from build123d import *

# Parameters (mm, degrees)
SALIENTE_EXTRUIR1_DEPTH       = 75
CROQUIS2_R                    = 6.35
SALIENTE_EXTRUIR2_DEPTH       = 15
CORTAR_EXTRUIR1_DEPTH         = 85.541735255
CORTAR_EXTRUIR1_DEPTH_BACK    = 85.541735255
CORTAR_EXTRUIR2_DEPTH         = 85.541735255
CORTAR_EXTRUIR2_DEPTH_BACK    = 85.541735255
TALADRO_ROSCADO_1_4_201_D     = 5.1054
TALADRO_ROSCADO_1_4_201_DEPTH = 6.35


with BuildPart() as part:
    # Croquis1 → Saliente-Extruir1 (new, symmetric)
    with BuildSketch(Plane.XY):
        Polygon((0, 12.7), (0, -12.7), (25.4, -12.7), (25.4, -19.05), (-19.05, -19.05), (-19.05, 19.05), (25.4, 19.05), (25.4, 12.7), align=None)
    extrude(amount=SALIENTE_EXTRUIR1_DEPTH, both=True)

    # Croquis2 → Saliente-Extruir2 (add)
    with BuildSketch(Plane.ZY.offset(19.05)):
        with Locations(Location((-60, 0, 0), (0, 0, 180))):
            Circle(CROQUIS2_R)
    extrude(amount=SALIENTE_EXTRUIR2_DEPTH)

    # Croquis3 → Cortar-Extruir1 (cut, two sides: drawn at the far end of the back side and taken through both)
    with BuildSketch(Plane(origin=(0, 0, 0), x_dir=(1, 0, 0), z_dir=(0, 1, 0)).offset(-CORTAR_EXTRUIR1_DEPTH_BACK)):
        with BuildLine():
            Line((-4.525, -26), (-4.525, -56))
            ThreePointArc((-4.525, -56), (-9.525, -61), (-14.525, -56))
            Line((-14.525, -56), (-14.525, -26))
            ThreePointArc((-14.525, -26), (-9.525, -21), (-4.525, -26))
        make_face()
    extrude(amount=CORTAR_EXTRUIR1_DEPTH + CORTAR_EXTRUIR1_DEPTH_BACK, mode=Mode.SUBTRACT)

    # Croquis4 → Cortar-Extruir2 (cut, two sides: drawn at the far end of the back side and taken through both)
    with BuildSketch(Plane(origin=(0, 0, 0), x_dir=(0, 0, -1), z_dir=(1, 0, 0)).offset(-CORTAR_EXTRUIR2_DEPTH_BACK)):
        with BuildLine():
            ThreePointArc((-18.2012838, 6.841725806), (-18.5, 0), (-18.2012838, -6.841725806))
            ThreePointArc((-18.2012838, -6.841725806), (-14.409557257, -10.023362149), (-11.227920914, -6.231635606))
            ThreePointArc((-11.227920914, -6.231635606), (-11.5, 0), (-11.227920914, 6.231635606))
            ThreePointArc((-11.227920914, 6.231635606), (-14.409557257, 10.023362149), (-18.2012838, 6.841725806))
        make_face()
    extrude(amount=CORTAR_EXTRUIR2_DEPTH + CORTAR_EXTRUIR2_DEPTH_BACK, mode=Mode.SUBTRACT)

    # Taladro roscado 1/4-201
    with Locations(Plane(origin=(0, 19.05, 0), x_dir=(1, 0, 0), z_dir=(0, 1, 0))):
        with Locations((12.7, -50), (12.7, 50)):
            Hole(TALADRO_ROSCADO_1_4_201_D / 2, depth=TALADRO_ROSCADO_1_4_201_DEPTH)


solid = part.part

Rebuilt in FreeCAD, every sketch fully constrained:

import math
import FreeCAD as App
import Part
import Sketcher

V = App.Vector
Q = App.Units.Quantity


def add_polygon(sketch, points):
    """Adds a closed chain of lines whose ends are joined by coincident constraints."""
    first, n = sketch.GeometryCount, len(points)
    for a, b in zip(points, points[1:] + points[:1]):
        sketch.addGeometry(Part.LineSegment(App.Vector(*a, 0), App.Vector(*b, 0)), False)
    for i in range(n):
        sketch.addConstraint(Sketcher.Constraint("Coincident", first + i, 2, first + (i + 1) % n, 1))

doc = App.newDocument("Part")
params = doc.addObject("Spreadsheet::Sheet", "Params")
for row, (alias, value) in enumerate([
    ("sketch1_width", "25.4 mm"),
    ("sketch1_height", "38.1 mm"),
    ("sketch1_width2", "44.45 mm"),
    ("pad1_length", "150 mm"),
    ("sketch2_diameter", "12.7 mm"),
    ("pad2_length", "15 mm"),
    ("sketch3_radius", "5 mm"),
    ("sketch3_height", "30 mm"),
    ("sketch4_radius", "78.5 mm"),
    ("sketch4_radius2", "3.5 mm"),
    ("hole_diameter", "5.1054 mm"),
    ("hole_depth", "6.35 mm"),
], start=1):
    params.set(f"A{row}", alias)
    params.set(f"B{row}", "=" + value)
    params.setAlias(f"B{row}", alias)

body = doc.addObject("PartDesign::Body", "Body")

sketch1 = doc.addObject("Sketcher::SketchObject", "Sketch")
body.addObject(sketch1)
sketch1.AttachmentSupport = (doc.XY_Plane, [""])
sketch1.MapMode = "FlatFace"
add_polygon(sketch1, [(0, -13), (0, 13), (25, 13), (25, 19), (-19, 19), (-19, -19), (25, -19), (25, -13)])
sketch1.addConstraint(Sketcher.Constraint("Vertical", 0))
sketch1.addConstraint(Sketcher.Constraint("Horizontal", 1))
sketch1.addConstraint(Sketcher.Constraint("Vertical", 2))
sketch1.addConstraint(Sketcher.Constraint("Horizontal", 3))
sketch1.addConstraint(Sketcher.Constraint("Vertical", 4))
sketch1.addConstraint(Sketcher.Constraint("Horizontal", 5))
sketch1.addConstraint(Sketcher.Constraint("Vertical", 6))
sketch1.addConstraint(Sketcher.Constraint("Horizontal", 7))
sketch1.addConstraint(Sketcher.Constraint("Symmetric", 0, 2, 7, 2, -1, 1))
sketch1.addConstraint(Sketcher.Constraint("Symmetric", 2, 2, 5, 2, -1))
sketch1.addConstraint(Sketcher.Constraint("Equal", 7, 0))
sketch1.addConstraint(Sketcher.Constraint("DistanceX", 1, 1, 1, 2, Q("25.4 mm")))
sketch1.addConstraint(Sketcher.Constraint("DistanceY", 4, 2, 4, 1, Q("38.1 mm")))
sketch1.addConstraint(Sketcher.Constraint("DistanceX", 3, 2, 3, 1, Q("44.45 mm")))
sketch1.setExpression("Constraints[19]", "Params.sketch1_width")
sketch1.setExpression("Constraints[20]", "Params.sketch1_height")
sketch1.setExpression("Constraints[21]", "Params.sketch1_width2")
pad1 = doc.addObject("PartDesign::Pad", "Pad")
body.addObject(pad1)
pad1.Profile = sketch1
pad1.setExpression("Length", "Params.pad1_length")
pad1.Midplane = True

sketch2 = doc.addObject("Sketcher::SketchObject", "Sketch001")
body.addObject(sketch2)
sketch2.AttachmentSupport = (doc.YZ_Plane, [""])
sketch2.MapMode = "FlatFace"
sketch2.AttachmentOffset = App.Placement(V(0, 0, -19.05), App.Rotation())
sketch2.addGeometry(Part.Circle(V(0, -60, 0), V(0, 0, 1), 6), False)
sketch2.addConstraint(Sketcher.Constraint("PointOnObject", 0, 3, -2))
sketch2.addConstraint(Sketcher.Constraint("Diameter", 0, Q("12.7 mm")))
sketch2.addConstraint(Sketcher.Constraint("DistanceY", 0, 3, -1, 1, Q("60 mm")))
sketch2.setExpression("Constraints[1]", "Params.sketch2_diameter")
pad2 = doc.addObject("PartDesign::Pad", "Pad001")
body.addObject(pad2)
pad2.Profile = sketch2
pad2.setExpression("Length", "Params.pad2_length")
pad2.Reversed = True

sketch3 = doc.addObject("Sketcher::SketchObject", "Sketch002")
body.addObject(sketch3)
sketch3.AttachmentSupport = (doc.XZ_Plane, [""])
sketch3.MapMode = "FlatFace"
sketch3.addGeometry(Part.LineSegment(V(-5, 56, 0), V(-5, 26, 0)), False)
sketch3.addGeometry(Part.ArcOfCircle(Part.Circle(V(-10, 26, 0), V(0, 0, 1), 5), math.radians(180), math.radians(360)), False)
sketch3.addGeometry(Part.LineSegment(V(-15, 26, 0), V(-15, 56, 0)), False)
sketch3.addGeometry(Part.ArcOfCircle(Part.Circle(V(-10, 56, 0), V(0, 0, 1), 5), math.radians(0), math.radians(180)), False)
sketch3.addConstraint(Sketcher.Constraint("Tangent", 0, 2, 1, 2))
sketch3.addConstraint(Sketcher.Constraint("Tangent", 1, 1, 2, 1))
sketch3.addConstraint(Sketcher.Constraint("Tangent", 2, 2, 3, 2))
sketch3.addConstraint(Sketcher.Constraint("Tangent", 3, 1, 0, 1))
sketch3.addConstraint(Sketcher.Constraint("Vertical", 0))
sketch3.addConstraint(Sketcher.Constraint("Vertical", 2))
sketch3.addConstraint(Sketcher.Constraint("Radius", 1, Q("5 mm")))
sketch3.addConstraint(Sketcher.Constraint("DistanceY", 0, 2, 0, 1, Q("30 mm")))
sketch3.addConstraint(Sketcher.Constraint("DistanceY", -1, 1, 1, 3, Q("26 mm")))
sketch3.addConstraint(Sketcher.Constraint("DistanceX", 1, 3, -1, 1, Q("9.525 mm")))
sketch3.setExpression("Constraints[6]", "Params.sketch3_radius")
sketch3.setExpression("Constraints[7]", "Params.sketch3_height")
pocket1 = doc.addObject("PartDesign::Pocket", "Pocket")
body.addObject(pocket1)
pocket1.Profile = sketch3
pocket1.Type = "ThroughAll"
pocket1.Midplane = True

sketch4 = doc.addObject("Sketcher::SketchObject", "Sketch003")
body.addObject(sketch4)
sketch4.AttachmentSupport = (doc.YZ_Plane, [""])
sketch4.MapMode = "FlatFace"
sketch4.addGeometry(Part.ArcOfCircle(Part.Circle(V(0, -60, 0), V(0, 0, 1), 78.5), math.radians(85), math.radians(95)), False)
sketch4.addGeometry(Part.ArcOfCircle(Part.Circle(V(-6.5, 14.7, 0), V(0, 0, 1), 3.5), math.radians(95), math.radians(275)), False)
sketch4.addGeometry(Part.ArcOfCircle(Part.Circle(V(0, -60, 0), V(0, 0, 1), 71.5), math.radians(85), math.radians(95)), False)
sketch4.addGeometry(Part.ArcOfCircle(Part.Circle(V(6.5, 14.7, 0), V(0, 0, 1), 3.5), math.radians(-95), math.radians(85)), False)
sketch4.addConstraint(Sketcher.Constraint("Tangent", 0, 2, 1, 1))
sketch4.addConstraint(Sketcher.Constraint("Tangent", 1, 2, 2, 2))
sketch4.addConstraint(Sketcher.Constraint("Tangent", 2, 1, 3, 1))
sketch4.addConstraint(Sketcher.Constraint("Tangent", 3, 2, 0, 1))
sketch4.addConstraint(Sketcher.Constraint("Coincident", 2, 3, 0, 3))
sketch4.addConstraint(Sketcher.Constraint("Symmetric", 1, 3, 3, 3, -2))
sketch4.addConstraint(Sketcher.Constraint("Radius", 0, Q("78.5 mm")))
sketch4.addConstraint(Sketcher.Constraint("Radius", 1, Q("3.5 mm")))
sketch4.addConstraint(Sketcher.Constraint("DistanceY", 0, 3, -1, 1, Q("60 mm")))
sketch4.addConstraint(Sketcher.Constraint("DistanceX", 1, 3, -1, 1, Q("6.536681 mm")))
sketch4.setExpression("Constraints[6]", "Params.sketch4_radius")
sketch4.setExpression("Constraints[7]", "Params.sketch4_radius2")
pocket2 = doc.addObject("PartDesign::Pocket", "Pocket001")
body.addObject(pocket2)
pocket2.Profile = sketch4
pocket2.Type = "ThroughAll"
pocket2.Midplane = True

sketch5 = doc.addObject("Sketcher::SketchObject", "Sketch004")
body.addObject(sketch5)
sketch5.AttachmentSupport = (doc.XZ_Plane, [""])
sketch5.MapMode = "FlatFace"
sketch5.AttachmentOffset = App.Placement(V(0, 0, -19.05), App.Rotation())
sketch5.addGeometry(Part.Circle(V(12.7, 50, 0), V(0, 0, 1), 2.6), False)
sketch5.addGeometry(Part.Circle(V(12.7, -50, 0), V(0, 0, 1), 2.6), False)
sketch5.addConstraint(Sketcher.Constraint("Equal", 0, 1))
sketch5.addConstraint(Sketcher.Constraint("Symmetric", 0, 3, 1, 3, -1))
sketch5.addConstraint(Sketcher.Constraint("DistanceY", -1, 1, 0, 3, Q("50 mm")))
sketch5.addConstraint(Sketcher.Constraint("Diameter", 0, Q("5.1054 mm")))
sketch5.addConstraint(Sketcher.Constraint("DistanceX", -1, 1, 0, 3, Q("12.7 mm")))
doc.recompute()
hole = doc.addObject("PartDesign::Hole", "Hole")
body.addObject(hole)
hole.Profile = sketch5
hole.ThreadType = "None"
hole.setExpression("Diameter", "Params.hole_diameter")
hole.DepthType = "Dimension"
hole.setExpression("Depth", "Params.hole_depth")
hole.DrillPoint = "Flat"
hole.Reversed = True

doc.recompute()
